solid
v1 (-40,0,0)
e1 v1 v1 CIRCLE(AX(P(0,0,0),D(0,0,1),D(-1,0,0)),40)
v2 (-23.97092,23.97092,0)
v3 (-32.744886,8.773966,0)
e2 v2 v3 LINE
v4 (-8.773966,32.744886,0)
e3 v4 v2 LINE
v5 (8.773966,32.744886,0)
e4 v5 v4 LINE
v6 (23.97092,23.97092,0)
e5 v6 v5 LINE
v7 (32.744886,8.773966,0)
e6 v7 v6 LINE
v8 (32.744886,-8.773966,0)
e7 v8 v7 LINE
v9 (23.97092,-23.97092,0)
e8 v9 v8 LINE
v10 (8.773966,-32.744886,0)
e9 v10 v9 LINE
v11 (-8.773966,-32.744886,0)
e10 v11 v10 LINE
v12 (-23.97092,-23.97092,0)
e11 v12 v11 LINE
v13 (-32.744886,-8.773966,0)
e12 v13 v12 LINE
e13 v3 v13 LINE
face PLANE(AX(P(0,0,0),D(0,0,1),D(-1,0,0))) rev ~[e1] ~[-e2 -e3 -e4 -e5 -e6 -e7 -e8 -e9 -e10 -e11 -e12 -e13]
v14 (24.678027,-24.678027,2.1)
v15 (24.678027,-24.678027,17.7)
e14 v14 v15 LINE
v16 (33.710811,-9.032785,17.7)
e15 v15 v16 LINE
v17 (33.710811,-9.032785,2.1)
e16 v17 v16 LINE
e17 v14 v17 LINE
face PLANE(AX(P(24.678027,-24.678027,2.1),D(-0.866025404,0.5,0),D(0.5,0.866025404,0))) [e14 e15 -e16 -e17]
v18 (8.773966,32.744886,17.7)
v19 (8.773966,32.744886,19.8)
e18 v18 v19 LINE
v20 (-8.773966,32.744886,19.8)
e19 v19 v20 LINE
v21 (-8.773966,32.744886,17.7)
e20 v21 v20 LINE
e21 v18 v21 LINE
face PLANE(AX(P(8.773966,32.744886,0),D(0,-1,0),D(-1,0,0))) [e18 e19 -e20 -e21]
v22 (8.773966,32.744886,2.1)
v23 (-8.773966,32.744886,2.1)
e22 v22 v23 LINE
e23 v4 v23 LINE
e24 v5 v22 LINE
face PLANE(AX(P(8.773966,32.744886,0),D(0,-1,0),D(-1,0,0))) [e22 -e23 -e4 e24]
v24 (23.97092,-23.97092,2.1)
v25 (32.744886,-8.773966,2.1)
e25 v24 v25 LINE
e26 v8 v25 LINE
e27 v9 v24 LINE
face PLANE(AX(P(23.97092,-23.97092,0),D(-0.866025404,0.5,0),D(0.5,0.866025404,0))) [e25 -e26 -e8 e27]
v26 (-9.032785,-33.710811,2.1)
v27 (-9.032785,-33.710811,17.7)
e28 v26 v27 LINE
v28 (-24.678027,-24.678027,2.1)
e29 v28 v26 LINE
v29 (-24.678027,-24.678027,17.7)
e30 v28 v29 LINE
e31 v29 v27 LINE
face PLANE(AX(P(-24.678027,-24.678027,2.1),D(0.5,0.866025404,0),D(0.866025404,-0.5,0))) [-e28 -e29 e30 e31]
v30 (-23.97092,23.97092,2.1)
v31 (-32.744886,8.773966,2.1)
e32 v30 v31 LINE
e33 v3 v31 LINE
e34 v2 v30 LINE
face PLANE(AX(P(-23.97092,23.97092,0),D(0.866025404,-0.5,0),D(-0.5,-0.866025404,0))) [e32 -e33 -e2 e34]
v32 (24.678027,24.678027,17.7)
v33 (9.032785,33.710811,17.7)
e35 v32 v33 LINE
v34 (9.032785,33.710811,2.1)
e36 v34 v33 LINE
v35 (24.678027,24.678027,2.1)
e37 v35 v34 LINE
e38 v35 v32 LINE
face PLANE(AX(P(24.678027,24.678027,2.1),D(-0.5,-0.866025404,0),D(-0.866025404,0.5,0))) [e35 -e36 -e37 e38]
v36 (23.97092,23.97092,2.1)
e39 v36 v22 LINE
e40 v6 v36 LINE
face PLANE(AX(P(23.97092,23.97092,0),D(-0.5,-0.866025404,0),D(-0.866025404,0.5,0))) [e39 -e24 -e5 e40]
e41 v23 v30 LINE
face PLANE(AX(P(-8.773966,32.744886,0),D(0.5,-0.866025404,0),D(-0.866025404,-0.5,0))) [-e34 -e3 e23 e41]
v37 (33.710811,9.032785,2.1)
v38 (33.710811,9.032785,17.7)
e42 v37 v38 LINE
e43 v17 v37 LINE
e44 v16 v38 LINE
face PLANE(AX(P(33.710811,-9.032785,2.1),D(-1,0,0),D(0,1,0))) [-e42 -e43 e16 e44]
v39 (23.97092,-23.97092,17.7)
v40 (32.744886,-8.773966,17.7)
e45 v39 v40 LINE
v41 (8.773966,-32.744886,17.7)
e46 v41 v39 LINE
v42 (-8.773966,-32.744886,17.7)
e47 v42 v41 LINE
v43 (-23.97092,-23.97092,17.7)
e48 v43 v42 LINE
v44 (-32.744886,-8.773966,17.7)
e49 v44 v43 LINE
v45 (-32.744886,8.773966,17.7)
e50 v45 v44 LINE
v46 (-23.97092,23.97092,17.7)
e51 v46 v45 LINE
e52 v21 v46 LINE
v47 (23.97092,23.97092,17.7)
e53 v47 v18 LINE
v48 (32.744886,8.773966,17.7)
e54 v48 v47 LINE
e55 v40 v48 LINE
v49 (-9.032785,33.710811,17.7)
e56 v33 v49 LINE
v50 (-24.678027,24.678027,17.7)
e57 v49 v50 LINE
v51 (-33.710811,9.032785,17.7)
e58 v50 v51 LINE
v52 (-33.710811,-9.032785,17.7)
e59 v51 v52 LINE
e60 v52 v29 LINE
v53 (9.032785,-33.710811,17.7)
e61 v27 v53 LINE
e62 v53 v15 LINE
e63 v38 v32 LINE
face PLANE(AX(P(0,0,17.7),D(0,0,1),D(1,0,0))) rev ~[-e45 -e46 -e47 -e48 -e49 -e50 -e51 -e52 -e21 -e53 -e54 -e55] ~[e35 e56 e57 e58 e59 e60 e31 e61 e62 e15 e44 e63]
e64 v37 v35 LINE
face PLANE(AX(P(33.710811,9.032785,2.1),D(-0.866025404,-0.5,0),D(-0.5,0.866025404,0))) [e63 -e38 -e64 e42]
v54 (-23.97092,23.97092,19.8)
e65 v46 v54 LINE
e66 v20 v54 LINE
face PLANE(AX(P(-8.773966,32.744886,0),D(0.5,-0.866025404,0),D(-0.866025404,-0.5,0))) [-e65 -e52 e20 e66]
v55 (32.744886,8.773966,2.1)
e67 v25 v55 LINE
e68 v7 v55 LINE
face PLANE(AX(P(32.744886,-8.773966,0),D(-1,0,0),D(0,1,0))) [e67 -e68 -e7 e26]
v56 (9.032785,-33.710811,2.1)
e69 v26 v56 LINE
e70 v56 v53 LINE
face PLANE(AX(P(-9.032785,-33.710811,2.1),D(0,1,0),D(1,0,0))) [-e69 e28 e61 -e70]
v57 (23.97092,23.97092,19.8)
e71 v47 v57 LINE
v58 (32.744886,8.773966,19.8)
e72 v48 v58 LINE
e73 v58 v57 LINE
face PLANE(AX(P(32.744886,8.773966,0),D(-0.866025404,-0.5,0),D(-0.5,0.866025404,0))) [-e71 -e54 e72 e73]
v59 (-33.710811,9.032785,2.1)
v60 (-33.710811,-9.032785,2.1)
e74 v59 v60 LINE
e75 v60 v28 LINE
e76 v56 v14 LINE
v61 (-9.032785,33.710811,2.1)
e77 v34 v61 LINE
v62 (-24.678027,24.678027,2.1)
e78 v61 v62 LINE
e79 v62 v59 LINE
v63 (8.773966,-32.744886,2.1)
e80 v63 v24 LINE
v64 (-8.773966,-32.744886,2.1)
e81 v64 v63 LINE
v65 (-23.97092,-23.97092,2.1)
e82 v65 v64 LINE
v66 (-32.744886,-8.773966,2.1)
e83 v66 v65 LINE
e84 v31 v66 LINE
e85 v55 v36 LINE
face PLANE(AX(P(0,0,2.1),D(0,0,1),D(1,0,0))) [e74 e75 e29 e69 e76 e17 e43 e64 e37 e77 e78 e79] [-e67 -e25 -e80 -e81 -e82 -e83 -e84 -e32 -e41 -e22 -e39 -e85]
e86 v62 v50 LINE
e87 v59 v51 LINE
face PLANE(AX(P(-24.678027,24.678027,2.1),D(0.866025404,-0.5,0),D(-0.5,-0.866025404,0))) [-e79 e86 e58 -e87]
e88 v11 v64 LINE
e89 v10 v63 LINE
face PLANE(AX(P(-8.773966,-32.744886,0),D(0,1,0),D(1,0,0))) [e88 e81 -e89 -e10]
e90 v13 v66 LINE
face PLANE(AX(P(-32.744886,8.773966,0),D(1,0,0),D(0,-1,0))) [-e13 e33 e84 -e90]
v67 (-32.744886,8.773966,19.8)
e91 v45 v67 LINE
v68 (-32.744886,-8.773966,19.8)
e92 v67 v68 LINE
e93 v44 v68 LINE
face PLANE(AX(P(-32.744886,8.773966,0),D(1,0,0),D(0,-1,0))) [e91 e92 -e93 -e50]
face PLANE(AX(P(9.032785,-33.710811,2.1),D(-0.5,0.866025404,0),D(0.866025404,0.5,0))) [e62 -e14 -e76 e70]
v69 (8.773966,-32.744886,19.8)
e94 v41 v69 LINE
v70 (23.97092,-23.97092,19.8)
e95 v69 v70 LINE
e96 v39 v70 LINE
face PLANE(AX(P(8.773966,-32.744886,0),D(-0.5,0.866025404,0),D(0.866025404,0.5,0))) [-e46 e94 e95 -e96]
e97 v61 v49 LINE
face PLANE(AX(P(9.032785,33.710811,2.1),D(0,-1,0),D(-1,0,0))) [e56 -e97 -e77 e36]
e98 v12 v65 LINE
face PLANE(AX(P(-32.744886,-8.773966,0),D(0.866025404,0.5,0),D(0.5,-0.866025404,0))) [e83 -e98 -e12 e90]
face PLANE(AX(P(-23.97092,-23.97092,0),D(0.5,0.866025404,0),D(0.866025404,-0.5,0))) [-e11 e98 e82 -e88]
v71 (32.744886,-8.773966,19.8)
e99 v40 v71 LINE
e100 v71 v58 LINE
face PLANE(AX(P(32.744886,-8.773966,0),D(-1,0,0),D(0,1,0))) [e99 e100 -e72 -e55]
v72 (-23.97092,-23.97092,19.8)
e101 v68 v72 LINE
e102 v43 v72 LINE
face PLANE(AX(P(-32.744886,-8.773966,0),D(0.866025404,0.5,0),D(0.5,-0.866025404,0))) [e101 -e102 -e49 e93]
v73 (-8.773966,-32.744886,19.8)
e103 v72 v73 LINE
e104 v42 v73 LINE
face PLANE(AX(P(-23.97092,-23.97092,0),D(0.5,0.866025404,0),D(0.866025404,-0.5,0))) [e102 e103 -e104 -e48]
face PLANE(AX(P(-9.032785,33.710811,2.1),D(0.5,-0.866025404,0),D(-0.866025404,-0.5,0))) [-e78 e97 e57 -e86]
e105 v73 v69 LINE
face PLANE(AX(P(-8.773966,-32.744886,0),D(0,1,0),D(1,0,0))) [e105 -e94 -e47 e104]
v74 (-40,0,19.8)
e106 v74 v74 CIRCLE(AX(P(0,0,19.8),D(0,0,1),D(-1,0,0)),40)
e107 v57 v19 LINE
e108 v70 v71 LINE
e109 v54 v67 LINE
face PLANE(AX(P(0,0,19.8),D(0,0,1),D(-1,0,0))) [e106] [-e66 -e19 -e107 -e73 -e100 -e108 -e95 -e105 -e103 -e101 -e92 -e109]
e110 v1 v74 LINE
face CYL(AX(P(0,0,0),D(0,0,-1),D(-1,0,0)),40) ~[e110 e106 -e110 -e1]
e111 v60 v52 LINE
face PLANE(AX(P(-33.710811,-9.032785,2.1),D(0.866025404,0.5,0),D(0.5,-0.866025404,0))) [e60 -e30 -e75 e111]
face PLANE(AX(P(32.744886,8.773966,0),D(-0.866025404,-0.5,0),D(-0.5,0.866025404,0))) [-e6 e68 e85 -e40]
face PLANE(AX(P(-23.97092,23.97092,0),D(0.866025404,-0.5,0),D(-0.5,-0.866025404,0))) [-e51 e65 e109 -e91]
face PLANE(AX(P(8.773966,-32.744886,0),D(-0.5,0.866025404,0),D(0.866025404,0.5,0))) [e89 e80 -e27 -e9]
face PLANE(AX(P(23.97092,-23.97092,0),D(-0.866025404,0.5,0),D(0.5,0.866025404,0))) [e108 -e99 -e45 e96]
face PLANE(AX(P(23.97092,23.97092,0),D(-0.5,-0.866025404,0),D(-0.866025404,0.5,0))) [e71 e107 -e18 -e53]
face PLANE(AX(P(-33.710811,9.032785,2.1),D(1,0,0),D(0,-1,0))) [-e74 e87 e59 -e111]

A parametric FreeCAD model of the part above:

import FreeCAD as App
import Part
import Sketcher
Q = App.Units.Quantity


def add_polygon(sketch, points):
    """Adds a closed chain of lines whose ends are joined by coincident constraints."""
    first, n = sketch.GeometryCount, len(points)
    for a, b in zip(points, points[1:] + points[:1]):
        sketch.addGeometry(Part.LineSegment(App.Vector(*a, 0), App.Vector(*b, 0)), False)
    for i in range(n):
        sketch.addConstraint(Sketcher.Constraint("Coincident", first + i, 2, first + (i + 1) % n, 1))

doc = App.newDocument("Part")
body = doc.addObject("PartDesign::Body", "Body")

# Sketch on XY plane
sketch1 = body.newObject("Sketcher::SketchObject", "Sketch")
sketch1.AttachmentSupport = (doc.getObject("XY_Plane"), [""])
sketch1.MapMode = "FlatFace"
sketch1.addGeometry(Part.Circle(App.Vector(0, 0, 0), App.Vector(0, 0, 1), 40), False)  # 0
add_polygon(sketch1, [(24, 24), (33, 9), (33, -9), (24, -24), (9, -33), (-9, -33), (-24, -24), (-33, -9), (-33, 9), (-24, 24), (-9, 33), (9, 33)])  # lines 1-12
sketch1.addConstraint([
    Sketcher.Constraint("Vertical", 2),
    Sketcher.Constraint("Horizontal", 5),
    Sketcher.Constraint("Vertical", 8),
    Sketcher.Constraint("Horizontal", 11),
    Sketcher.Constraint("Coincident", 0, 3, -1, 1),
    Sketcher.Constraint("Symmetric", 1, 2, 7, 2, -1, 1),
    Sketcher.Constraint("Symmetric", 3, 2, 9, 2, -1, 1),
    Sketcher.Constraint("Symmetric", 4, 2, 10, 2, -1, 1),
    Sketcher.Constraint("Symmetric", 6, 2, 12, 2, -1, 1),
    Sketcher.Constraint("Symmetric", 3, 2, 6, 2, -2),
    Sketcher.Constraint("Perpendicular", 1, 4),
    Sketcher.Constraint("Perpendicular", 3, 6),
    Sketcher.Constraint("Perpendicular", 6, 9),
    Sketcher.Constraint("Perpendicular", 9, 12),
    Sketcher.Constraint("Horizontal", 2, 2, 7, 2),
    Sketcher.Constraint("Equal", 11, 2),
    Sketcher.Constraint("Equal", 3, 4),
    Sketcher.Constraint("Diameter", 0, Q("80 mm")),
    Sketcher.Constraint("Angle", 1, Q("-60 deg")),
    Sketcher.Constraint("DistanceX", 5, 2, 5, 1, Q("17.547931 mm")),
    Sketcher.Constraint("Distance", 1, Q("17.547931 mm")),
])
pad1 = body.newObject("PartDesign::Pad", "Pad")
pad1.Profile = sketch1
pad1.Length = 19.8

# Sketch on XY plane
sketch2 = body.newObject("Sketcher::SketchObject", "Sketch001")
sketch2.AttachmentSupport = (doc.getObject("XY_Plane"), [""])
sketch2.MapMode = "FlatFace"
sketch2.AttachmentOffset = App.Placement(App.Vector(0, 0, 2.1), App.Rotation())
add_polygon(sketch2, [(34, 9), (25, 25), (9, 34), (-9, 34), (-25, 25), (-34, 9), (-34, -9), (-25, -25), (-9, -34), (9, -34), (25, -25), (34, -9)])  # lines 0-11
sketch2.addConstraint([
    Sketcher.Constraint("Horizontal", 2),
    Sketcher.Constraint("Vertical", 5),
    Sketcher.Constraint("Horizontal", 8),
    Sketcher.Constraint("Vertical", 11),
    Sketcher.Constraint("Symmetric", 0, 2, 6, 2, -1, 1),
    Sketcher.Constraint("Symmetric", 1, 2, 7, 2, -1, 1),
    Sketcher.Constraint("Symmetric", 3, 2, 9, 2, -1, 1),
    Sketcher.Constraint("Symmetric", 4, 2, 10, 2, -1, 1),
    Sketcher.Constraint("Symmetric", 0, 2, 3, 2, -2),
    Sketcher.Constraint("Perpendicular", 0, 3),
    Sketcher.Constraint("Perpendicular", 1, 4),
    Sketcher.Constraint("Perpendicular", 3, 6),
    Sketcher.Constraint("Perpendicular", 6, 9),
    Sketcher.Constraint("Horizontal", 5, 2, 10, 2),
    Sketcher.Constraint("Equal", 8, 5),
    Sketcher.Constraint("Equal", 0, 1),
    Sketcher.Constraint("Angle", 0, Q("120 deg")),
    Sketcher.Constraint("DistanceX", 2, 2, 2, 1, Q("18.065569 mm")),
    Sketcher.Constraint("Distance", 0, Q("18.065569 mm")),
])
pocket1 = body.newObject("PartDesign::Pocket", "Pocket")
pocket1.Profile = sketch2
pocket1.Length = 15.6
pocket1.Reversed = True

doc.recompute()
